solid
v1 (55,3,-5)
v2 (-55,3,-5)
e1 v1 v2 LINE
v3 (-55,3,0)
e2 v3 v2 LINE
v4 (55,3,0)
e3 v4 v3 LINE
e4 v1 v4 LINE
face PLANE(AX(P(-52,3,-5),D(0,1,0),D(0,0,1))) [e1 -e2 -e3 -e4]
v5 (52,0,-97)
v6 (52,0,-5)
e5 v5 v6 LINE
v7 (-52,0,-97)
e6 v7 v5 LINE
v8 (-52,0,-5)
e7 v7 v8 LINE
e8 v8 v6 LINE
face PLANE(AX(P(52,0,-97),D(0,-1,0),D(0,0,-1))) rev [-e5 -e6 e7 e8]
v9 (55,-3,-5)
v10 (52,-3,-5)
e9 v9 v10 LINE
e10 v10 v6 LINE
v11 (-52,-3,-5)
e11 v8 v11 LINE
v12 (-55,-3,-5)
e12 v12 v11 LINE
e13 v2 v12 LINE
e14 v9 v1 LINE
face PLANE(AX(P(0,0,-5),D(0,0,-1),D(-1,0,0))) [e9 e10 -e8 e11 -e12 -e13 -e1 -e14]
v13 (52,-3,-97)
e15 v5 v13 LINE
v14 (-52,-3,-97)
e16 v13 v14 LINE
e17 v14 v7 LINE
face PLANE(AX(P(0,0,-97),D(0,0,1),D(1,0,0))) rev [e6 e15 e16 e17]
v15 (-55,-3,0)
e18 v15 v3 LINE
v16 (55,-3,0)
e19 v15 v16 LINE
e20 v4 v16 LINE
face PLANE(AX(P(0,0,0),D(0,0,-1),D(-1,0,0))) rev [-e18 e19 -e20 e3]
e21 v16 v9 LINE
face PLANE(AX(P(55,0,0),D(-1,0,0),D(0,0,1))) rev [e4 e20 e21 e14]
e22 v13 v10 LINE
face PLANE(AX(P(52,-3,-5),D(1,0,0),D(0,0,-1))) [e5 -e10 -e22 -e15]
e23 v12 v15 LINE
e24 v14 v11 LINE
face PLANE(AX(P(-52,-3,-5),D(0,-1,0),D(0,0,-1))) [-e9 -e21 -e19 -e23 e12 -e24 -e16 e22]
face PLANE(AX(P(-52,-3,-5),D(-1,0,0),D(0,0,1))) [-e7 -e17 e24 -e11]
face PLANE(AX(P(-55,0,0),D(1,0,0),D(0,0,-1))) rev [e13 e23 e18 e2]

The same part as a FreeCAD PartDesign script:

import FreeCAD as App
import Part
import Sketcher
from FreeCAD import Vector
Q = App.Units.Quantity


def add_polygon(sketch, points):
    """Adds a closed chain of lines whose ends are joined by coincident constraints."""
    first, n = sketch.GeometryCount, len(points)
    for a, b in zip(points, points[1:] + points[:1]):
        sketch.addGeometry(Part.LineSegment(App.Vector(*a, 0), App.Vector(*b, 0)), False)
    for i in range(n):
        sketch.addConstraint(Sketcher.Constraint("Coincident", first + i, 2, first + (i + 1) % n, 1))

doc = App.newDocument("Part")
params = doc.addObject("Spreadsheet::Sheet", "Params")
for row, (alias, value) in enumerate([
    ("sketch1_width", "104 mm"),
    ("sketch1_height", "6 mm"),
    ("pad1_length", "5 mm"),
    ("sketch2_width", "104 mm"),
    ("sketch2_height", "3 mm"),
    ("pad2_length", "92 mm"),
    ("sketch3_width", "6 mm"),
    ("sketch3_height", "5 mm"),
    ("pad3_length", "3 mm"),
    ("sketch4_width", "6 mm"),
    ("sketch4_height", "5 mm"),
    ("pad4_length", "3 mm"),
], start=1):
    params.set(f"A{row}", alias)
    params.set(f"B{row}", "=" + value)
    params.setAlias(f"B{row}", alias)

body = doc.addObject("PartDesign::Body", "Body")

# Sketch on XY plane
sketch1 = body.newObject("Sketcher::SketchObject", "Sketch")
sketch1.AttachmentSupport = (doc.getObject("XY_Plane"), [""])
sketch1.MapMode = "FlatFace"
add_polygon(sketch1, [(-52, 3), (-52, -3), (52, -3), (52, 3)])  # lines 0-3
sketch1.addConstraint(Sketcher.Constraint("Vertical", 0))
sketch1.addConstraint(Sketcher.Constraint("Horizontal", 1))
sketch1.addConstraint(Sketcher.Constraint("Vertical", 2))
sketch1.addConstraint(Sketcher.Constraint("Horizontal", 3))
sketch1.addConstraint(Sketcher.Constraint("Symmetric", 0, 2, 2, 2, -1, 1))
sketch1.addConstraint(Sketcher.Constraint("DistanceX", 1, 1, 1, 2, Q("104 mm")))
sketch1.addConstraint(Sketcher.Constraint("DistanceY", 0, 2, 0, 1, Q("6 mm")))
sketch1.setExpression("Constraints[9]", "Params.sketch1_width")
sketch1.setExpression("Constraints[10]", "Params.sketch1_height")
pad1 = body.newObject("PartDesign::Pad", "Pad")
pad1.Profile = sketch1
pad1.setExpression("Length", "Params.pad1_length")
pad1.Reversed = True

# Sketch on XY plane
sketch2 = body.newObject("Sketcher::SketchObject", "Sketch001")
sketch2.AttachmentSupport = (doc.getObject("XY_Plane"), [""])
sketch2.MapMode = "FlatFace"
sketch2.AttachmentOffset = App.Placement(Vector(0, 0, -5), App.Rotation())
add_polygon(sketch2, [(52, 0), (52, -3), (-52, -3), (-52, 0)])  # lines 0-3
sketch2.addConstraint(Sketcher.Constraint("Vertical", 0))
sketch2.addConstraint(Sketcher.Constraint("Horizontal", 1))
sketch2.addConstraint(Sketcher.Constraint("Vertical", 2))
sketch2.addConstraint(Sketcher.Constraint("Horizontal", 3))
sketch2.addConstraint(Sketcher.Constraint("Symmetric", 2, 2, 3, 2, -1, 1))
sketch2.addConstraint(Sketcher.Constraint("DistanceX", 1, 2, 1, 1, Q("104 mm")))
sketch2.addConstraint(Sketcher.Constraint("DistanceY", 0, 2, 0, 1, Q("3 mm")))
sketch2.setExpression("Constraints[9]", "Params.sketch2_width")
sketch2.setExpression("Constraints[10]", "Params.sketch2_height")
pad2 = body.newObject("PartDesign::Pad", "Pad001")
pad2.Profile = sketch2
pad2.setExpression("Length", "Params.pad2_length")
pad2.Reversed = True

# Sketch on YZ plane
sketch3 = body.newObject("Sketcher::SketchObject", "Sketch002")
sketch3.AttachmentSupport = (doc.getObject("YZ_Plane"), [""])
sketch3.MapMode = "FlatFace"
sketch3.AttachmentOffset = App.Placement(Vector(0, 0, 52), App.Rotation())
add_polygon(sketch3, [(3, 0), (-3, 0), (-3, -5), (3, -5)])  # lines 0-3
sketch3.addConstraint(Sketcher.Constraint("Horizontal", 0))
sketch3.addConstraint(Sketcher.Constraint("Vertical", 1))
sketch3.addConstraint(Sketcher.Constraint("Horizontal", 2))
sketch3.addConstraint(Sketcher.Constraint("Vertical", 3))
sketch3.addConstraint(Sketcher.Constraint("Symmetric", 0, 2, 3, 2, -1, 1))
sketch3.addConstraint(Sketcher.Constraint("DistanceX", 0, 2, 0, 1, Q("6 mm")))
sketch3.addConstraint(Sketcher.Constraint("DistanceY", 1, 2, 1, 1, Q("5 mm")))
sketch3.setExpression("Constraints[9]", "Params.sketch3_width")
sketch3.setExpression("Constraints[10]", "Params.sketch3_height")
pad3 = body.newObject("PartDesign::Pad", "Pad002")
pad3.Profile = sketch3
pad3.setExpression("Length", "Params.pad3_length")

# Sketch on YZ plane
sketch4 = body.newObject("Sketcher::SketchObject", "Sketch003")
sketch4.AttachmentSupport = (doc.getObject("YZ_Plane"), [""])
sketch4.MapMode = "FlatFace"
sketch4.AttachmentOffset = App.Placement(Vector(0, 0, -52), App.Rotation())
add_polygon(sketch4, [(3, -5), (-3, -5), (-3, 0), (3, 0)])  # lines 0-3
sketch4.addConstraint(Sketcher.Constraint("Horizontal", 0))
sketch4.addConstraint(Sketcher.Constraint("Vertical", 1))
sketch4.addConstraint(Sketcher.Constraint("Horizontal", 2))
sketch4.addConstraint(Sketcher.Constraint("Vertical", 3))
sketch4.addConstraint(Sketcher.Constraint("Symmetric", 1, 2, 2, 2, -1, 1))
sketch4.addConstraint(Sketcher.Constraint("DistanceX", 0, 2, 0, 1, Q("6 mm")))
sketch4.addConstraint(Sketcher.Constraint("DistanceY", 1, 1, 1, 2, Q("5 mm")))
sketch4.setExpression("Constraints[9]", "Params.sketch4_width")
sketch4.setExpression("Constraints[10]", "Params.sketch4_height")
pad4 = body.newObject("PartDesign::Pad", "Pad003")
pad4.Profile = sketch4
pad4.setExpression("Length", "Params.pad4_length")
pad4.Reversed = True

doc.recompute()
